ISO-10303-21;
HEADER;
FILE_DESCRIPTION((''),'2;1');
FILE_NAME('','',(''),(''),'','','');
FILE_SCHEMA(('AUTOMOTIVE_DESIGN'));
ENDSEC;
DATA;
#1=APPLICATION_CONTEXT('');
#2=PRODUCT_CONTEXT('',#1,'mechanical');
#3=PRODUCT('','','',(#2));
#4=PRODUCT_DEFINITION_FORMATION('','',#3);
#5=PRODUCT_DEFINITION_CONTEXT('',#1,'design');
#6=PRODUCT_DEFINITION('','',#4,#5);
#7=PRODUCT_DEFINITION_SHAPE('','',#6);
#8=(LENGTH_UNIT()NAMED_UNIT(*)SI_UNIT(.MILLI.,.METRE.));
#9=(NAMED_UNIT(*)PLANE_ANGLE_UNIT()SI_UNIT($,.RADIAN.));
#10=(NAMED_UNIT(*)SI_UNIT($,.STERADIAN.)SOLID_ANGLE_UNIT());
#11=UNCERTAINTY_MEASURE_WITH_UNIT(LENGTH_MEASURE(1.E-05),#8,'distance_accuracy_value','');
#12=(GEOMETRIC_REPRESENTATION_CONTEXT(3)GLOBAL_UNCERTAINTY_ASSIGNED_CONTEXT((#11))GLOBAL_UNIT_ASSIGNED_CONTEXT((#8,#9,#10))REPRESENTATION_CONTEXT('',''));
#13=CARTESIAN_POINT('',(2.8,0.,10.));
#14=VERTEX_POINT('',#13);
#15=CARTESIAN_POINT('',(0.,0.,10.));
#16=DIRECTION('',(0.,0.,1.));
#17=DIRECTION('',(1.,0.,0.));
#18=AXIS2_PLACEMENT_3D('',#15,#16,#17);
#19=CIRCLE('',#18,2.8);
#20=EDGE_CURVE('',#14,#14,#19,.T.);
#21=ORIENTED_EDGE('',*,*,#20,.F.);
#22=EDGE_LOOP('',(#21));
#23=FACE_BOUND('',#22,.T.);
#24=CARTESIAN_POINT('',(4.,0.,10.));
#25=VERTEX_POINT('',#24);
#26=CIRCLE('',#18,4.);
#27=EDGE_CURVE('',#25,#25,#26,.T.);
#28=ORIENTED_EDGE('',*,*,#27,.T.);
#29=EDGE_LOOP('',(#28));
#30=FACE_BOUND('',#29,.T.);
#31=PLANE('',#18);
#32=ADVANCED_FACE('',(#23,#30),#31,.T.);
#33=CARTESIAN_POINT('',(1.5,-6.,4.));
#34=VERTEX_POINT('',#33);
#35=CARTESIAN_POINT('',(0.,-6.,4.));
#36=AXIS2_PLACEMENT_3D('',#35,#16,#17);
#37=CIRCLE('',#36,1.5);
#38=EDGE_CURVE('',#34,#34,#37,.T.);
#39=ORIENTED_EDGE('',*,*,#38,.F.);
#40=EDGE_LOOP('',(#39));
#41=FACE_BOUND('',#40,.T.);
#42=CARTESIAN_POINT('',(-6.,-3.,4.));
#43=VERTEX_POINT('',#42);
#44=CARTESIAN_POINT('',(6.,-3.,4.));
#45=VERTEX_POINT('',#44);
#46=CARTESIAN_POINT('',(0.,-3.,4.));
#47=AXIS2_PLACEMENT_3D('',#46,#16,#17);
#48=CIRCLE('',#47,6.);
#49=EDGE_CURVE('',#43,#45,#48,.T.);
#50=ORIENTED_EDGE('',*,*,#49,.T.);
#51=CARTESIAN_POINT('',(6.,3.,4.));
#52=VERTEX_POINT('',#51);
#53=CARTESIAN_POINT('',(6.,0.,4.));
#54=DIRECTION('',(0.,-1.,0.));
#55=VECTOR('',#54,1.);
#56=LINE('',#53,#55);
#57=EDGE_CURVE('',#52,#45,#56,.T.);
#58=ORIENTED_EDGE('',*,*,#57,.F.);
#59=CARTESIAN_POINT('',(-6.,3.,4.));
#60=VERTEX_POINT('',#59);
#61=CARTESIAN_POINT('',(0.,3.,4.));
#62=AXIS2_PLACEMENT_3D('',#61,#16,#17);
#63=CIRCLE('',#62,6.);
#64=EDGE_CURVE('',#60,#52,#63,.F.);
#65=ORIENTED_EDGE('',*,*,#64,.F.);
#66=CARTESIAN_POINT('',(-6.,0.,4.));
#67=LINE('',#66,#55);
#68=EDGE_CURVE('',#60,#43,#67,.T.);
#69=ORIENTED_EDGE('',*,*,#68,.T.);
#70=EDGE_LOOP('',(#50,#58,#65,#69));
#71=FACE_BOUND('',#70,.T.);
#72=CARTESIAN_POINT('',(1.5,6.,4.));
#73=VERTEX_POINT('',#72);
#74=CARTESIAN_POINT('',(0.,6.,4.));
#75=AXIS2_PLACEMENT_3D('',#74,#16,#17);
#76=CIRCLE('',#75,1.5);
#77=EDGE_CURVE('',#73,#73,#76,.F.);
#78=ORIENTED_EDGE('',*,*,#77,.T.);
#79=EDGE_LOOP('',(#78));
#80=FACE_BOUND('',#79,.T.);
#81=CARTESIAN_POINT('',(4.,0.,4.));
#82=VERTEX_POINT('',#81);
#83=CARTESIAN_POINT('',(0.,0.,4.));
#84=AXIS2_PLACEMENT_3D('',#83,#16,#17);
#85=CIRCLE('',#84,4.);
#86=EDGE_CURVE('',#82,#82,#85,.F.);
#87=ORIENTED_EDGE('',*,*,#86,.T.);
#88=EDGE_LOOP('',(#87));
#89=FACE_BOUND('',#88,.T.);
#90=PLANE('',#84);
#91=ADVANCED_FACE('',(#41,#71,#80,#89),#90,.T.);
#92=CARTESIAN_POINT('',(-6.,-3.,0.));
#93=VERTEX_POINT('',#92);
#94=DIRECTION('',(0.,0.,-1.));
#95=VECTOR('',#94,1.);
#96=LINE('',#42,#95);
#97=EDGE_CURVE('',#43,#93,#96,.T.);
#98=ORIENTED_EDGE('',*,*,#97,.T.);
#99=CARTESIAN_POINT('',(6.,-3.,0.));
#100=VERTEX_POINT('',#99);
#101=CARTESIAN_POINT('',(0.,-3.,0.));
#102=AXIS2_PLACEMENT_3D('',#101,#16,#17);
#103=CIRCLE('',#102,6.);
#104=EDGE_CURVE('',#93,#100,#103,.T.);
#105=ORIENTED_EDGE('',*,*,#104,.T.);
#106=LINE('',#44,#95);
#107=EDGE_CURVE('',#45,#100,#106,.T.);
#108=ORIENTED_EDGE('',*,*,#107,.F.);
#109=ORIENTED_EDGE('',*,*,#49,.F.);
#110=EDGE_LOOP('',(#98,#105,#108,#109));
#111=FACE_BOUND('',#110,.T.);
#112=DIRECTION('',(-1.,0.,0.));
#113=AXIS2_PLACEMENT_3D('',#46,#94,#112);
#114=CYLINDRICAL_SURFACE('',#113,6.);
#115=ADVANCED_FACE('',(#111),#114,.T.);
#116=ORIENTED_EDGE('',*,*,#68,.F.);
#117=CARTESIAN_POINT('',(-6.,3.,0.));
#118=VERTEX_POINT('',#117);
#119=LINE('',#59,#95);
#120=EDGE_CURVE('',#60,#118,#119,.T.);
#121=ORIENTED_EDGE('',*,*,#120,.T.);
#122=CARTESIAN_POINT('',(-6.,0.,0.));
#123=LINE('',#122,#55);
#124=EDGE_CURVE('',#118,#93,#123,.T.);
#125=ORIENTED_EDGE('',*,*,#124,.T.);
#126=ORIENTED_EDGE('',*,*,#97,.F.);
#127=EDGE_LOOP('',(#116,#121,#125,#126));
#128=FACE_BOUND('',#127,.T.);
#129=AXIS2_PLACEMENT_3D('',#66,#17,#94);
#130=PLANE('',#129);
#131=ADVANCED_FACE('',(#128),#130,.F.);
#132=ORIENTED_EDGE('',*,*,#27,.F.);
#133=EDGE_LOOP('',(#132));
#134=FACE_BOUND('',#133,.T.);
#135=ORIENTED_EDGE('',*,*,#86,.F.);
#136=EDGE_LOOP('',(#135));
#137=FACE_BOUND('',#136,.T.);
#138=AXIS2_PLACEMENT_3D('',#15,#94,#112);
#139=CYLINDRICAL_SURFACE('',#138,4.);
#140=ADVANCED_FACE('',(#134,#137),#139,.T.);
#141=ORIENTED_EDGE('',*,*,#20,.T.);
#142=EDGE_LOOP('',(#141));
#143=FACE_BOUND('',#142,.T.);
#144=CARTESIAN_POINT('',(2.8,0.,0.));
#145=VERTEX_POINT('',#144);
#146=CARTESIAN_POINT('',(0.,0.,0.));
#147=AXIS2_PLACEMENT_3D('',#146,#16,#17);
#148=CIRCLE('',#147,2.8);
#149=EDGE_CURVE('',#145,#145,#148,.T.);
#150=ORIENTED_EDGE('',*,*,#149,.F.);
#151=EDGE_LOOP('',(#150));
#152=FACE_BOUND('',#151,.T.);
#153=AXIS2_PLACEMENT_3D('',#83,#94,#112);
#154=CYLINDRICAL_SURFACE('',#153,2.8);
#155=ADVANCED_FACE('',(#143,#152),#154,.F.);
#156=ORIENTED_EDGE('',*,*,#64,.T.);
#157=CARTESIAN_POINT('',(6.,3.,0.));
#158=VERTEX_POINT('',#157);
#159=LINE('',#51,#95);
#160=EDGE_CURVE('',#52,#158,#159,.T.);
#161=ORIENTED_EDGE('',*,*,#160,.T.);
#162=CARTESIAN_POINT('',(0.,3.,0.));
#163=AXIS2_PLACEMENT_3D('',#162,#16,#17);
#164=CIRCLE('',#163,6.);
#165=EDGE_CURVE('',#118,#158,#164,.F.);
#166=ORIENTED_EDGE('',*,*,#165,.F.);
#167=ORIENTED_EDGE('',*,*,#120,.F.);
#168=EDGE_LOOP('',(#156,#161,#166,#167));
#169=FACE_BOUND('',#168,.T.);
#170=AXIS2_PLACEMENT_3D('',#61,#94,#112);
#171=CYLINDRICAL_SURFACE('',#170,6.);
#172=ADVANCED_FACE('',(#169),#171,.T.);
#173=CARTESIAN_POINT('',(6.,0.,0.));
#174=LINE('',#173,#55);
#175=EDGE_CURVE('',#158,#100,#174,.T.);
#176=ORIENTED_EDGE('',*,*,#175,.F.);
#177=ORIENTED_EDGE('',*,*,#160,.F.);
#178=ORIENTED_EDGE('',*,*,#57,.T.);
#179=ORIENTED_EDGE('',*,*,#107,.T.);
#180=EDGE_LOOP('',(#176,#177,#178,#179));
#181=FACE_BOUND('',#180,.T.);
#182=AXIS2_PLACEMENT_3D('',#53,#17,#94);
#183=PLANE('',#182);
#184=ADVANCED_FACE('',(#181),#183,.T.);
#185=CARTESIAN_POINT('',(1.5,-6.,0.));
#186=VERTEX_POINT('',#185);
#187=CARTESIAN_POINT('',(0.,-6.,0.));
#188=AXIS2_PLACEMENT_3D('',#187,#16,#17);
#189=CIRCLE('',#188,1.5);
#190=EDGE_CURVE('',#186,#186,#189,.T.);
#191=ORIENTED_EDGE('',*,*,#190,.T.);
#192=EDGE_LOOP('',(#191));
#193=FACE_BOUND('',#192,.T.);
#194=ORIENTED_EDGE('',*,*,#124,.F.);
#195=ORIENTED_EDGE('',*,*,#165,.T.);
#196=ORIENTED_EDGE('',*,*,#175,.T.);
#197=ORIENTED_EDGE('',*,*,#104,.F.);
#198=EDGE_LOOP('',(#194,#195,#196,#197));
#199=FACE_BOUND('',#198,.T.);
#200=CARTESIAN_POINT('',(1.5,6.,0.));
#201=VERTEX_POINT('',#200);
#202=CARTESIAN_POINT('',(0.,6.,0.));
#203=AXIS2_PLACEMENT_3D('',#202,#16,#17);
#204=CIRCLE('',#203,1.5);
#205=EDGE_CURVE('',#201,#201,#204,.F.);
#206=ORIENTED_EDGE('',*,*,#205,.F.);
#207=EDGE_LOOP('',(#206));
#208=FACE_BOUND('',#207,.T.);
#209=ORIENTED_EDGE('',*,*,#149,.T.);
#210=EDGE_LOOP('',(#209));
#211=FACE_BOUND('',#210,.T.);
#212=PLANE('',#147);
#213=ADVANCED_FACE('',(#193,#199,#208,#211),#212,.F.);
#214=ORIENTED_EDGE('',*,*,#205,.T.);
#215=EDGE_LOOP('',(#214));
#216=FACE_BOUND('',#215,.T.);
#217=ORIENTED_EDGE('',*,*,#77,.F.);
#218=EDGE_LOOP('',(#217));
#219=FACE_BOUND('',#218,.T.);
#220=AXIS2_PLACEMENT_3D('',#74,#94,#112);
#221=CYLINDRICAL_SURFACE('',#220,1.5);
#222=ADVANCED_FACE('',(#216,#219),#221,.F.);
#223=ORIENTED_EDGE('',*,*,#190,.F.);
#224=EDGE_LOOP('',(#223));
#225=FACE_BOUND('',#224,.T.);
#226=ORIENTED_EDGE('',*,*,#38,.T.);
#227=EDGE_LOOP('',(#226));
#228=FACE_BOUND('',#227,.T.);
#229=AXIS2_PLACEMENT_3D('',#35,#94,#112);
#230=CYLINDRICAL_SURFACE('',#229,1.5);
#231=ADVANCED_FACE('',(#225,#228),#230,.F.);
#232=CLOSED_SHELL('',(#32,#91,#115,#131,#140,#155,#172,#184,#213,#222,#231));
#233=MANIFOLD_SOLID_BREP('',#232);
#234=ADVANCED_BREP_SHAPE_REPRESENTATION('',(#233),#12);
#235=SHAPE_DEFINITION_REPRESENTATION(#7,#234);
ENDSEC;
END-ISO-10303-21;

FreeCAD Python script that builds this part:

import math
import FreeCAD as App
import Part
import Sketcher

doc = App.newDocument("Part")
body = doc.addObject("PartDesign::Body", "Body")

sketch1 = doc.addObject("Sketcher::SketchObject", "Sketch")
body.addObject(sketch1)
sketch1.AttachmentSupport = (doc.XY_Plane, [""])
sketch1.MapMode = "FlatFace"
sketch1.addGeometry([
    Part.ArcOfCircle(Part.Circle(App.Vector(0, -3, 0), App.Vector(0, 0, 1), 6), math.radians(180), math.radians(360)),
    Part.LineSegment(App.Vector(6, -3, 0), App.Vector(6, 3, 0)),
    Part.ArcOfCircle(Part.Circle(App.Vector(0, 3, 0), App.Vector(0, 0, 1), 6), math.radians(0), math.radians(180)),
    Part.LineSegment(App.Vector(-6, 3, 0), App.Vector(-6, -3, 0)),
    Part.Circle(App.Vector(0, -6, 0), App.Vector(0, 0, 1), 1.5),
    Part.Circle(App.Vector(0, 0, 0), App.Vector(0, 0, 1), 2.8),
    Part.Circle(App.Vector(0, 6, 0), App.Vector(0, 0, 1), 1.5),
], False)
sketch1.addConstraint([
    Sketcher.Constraint("Tangent", 0, 2, 1, 1),
    Sketcher.Constraint("Tangent", 1, 2, 2, 1),
    Sketcher.Constraint("Tangent", 2, 2, 3, 1),
    Sketcher.Constraint("Tangent", 3, 2, 0, 1),
    Sketcher.Constraint("Vertical", 1),
    Sketcher.Constraint("Vertical", 3),
    Sketcher.Constraint("Coincident", 5, 3, -1, 1),
    Sketcher.Constraint("Equal", 4, 6),
    Sketcher.Constraint("Symmetric", 0, 3, 2, 3, -1, 1),
    Sketcher.Constraint("Symmetric", 4, 3, 6, 3, -1, 1),
    Sketcher.Constraint("PointOnObject", 4, 3, -2),
    Sketcher.Constraint("Diameter", 4, 3.0),
    Sketcher.Constraint("Radius", 0, 6.0),
    Sketcher.Constraint("Diameter", 5, 5.6),
    Sketcher.Constraint("DistanceY", 1, 1, 1, 2, 6.0),
    Sketcher.Constraint("DistanceY", 4, 3, -1, 1, 6.0),
])
pad1 = doc.addObject("PartDesign::Pad", "Pad")
body.addObject(pad1)
pad1.Profile = sketch1
pad1.Length = 4

sketch2 = doc.addObject("Sketcher::SketchObject", "Sketch001")
body.addObject(sketch2)
sketch2.AttachmentSupport = (doc.XY_Plane, [""])
sketch2.MapMode = "FlatFace"
sketch2.addGeometry([
    Part.Circle(App.Vector(0, 0, 0), App.Vector(0, 0, 1), 4),
    Part.Circle(App.Vector(0, 0, 0), App.Vector(0, 0, 1), 2.8),
], False)
sketch2.addConstraint([
    Sketcher.Constraint("Coincident", 0, 3, -1, 1),
    Sketcher.Constraint("Coincident", 1, 3, -1, 1),
    Sketcher.Constraint("Diameter", 0, 8.0),
    Sketcher.Constraint("Diameter", 1, 5.6),
])
pad2 = doc.addObject("PartDesign::Pad", "Pad001")
body.addObject(pad2)
pad2.Profile = sketch2
pad2.Length = 10

doc.recompute()
